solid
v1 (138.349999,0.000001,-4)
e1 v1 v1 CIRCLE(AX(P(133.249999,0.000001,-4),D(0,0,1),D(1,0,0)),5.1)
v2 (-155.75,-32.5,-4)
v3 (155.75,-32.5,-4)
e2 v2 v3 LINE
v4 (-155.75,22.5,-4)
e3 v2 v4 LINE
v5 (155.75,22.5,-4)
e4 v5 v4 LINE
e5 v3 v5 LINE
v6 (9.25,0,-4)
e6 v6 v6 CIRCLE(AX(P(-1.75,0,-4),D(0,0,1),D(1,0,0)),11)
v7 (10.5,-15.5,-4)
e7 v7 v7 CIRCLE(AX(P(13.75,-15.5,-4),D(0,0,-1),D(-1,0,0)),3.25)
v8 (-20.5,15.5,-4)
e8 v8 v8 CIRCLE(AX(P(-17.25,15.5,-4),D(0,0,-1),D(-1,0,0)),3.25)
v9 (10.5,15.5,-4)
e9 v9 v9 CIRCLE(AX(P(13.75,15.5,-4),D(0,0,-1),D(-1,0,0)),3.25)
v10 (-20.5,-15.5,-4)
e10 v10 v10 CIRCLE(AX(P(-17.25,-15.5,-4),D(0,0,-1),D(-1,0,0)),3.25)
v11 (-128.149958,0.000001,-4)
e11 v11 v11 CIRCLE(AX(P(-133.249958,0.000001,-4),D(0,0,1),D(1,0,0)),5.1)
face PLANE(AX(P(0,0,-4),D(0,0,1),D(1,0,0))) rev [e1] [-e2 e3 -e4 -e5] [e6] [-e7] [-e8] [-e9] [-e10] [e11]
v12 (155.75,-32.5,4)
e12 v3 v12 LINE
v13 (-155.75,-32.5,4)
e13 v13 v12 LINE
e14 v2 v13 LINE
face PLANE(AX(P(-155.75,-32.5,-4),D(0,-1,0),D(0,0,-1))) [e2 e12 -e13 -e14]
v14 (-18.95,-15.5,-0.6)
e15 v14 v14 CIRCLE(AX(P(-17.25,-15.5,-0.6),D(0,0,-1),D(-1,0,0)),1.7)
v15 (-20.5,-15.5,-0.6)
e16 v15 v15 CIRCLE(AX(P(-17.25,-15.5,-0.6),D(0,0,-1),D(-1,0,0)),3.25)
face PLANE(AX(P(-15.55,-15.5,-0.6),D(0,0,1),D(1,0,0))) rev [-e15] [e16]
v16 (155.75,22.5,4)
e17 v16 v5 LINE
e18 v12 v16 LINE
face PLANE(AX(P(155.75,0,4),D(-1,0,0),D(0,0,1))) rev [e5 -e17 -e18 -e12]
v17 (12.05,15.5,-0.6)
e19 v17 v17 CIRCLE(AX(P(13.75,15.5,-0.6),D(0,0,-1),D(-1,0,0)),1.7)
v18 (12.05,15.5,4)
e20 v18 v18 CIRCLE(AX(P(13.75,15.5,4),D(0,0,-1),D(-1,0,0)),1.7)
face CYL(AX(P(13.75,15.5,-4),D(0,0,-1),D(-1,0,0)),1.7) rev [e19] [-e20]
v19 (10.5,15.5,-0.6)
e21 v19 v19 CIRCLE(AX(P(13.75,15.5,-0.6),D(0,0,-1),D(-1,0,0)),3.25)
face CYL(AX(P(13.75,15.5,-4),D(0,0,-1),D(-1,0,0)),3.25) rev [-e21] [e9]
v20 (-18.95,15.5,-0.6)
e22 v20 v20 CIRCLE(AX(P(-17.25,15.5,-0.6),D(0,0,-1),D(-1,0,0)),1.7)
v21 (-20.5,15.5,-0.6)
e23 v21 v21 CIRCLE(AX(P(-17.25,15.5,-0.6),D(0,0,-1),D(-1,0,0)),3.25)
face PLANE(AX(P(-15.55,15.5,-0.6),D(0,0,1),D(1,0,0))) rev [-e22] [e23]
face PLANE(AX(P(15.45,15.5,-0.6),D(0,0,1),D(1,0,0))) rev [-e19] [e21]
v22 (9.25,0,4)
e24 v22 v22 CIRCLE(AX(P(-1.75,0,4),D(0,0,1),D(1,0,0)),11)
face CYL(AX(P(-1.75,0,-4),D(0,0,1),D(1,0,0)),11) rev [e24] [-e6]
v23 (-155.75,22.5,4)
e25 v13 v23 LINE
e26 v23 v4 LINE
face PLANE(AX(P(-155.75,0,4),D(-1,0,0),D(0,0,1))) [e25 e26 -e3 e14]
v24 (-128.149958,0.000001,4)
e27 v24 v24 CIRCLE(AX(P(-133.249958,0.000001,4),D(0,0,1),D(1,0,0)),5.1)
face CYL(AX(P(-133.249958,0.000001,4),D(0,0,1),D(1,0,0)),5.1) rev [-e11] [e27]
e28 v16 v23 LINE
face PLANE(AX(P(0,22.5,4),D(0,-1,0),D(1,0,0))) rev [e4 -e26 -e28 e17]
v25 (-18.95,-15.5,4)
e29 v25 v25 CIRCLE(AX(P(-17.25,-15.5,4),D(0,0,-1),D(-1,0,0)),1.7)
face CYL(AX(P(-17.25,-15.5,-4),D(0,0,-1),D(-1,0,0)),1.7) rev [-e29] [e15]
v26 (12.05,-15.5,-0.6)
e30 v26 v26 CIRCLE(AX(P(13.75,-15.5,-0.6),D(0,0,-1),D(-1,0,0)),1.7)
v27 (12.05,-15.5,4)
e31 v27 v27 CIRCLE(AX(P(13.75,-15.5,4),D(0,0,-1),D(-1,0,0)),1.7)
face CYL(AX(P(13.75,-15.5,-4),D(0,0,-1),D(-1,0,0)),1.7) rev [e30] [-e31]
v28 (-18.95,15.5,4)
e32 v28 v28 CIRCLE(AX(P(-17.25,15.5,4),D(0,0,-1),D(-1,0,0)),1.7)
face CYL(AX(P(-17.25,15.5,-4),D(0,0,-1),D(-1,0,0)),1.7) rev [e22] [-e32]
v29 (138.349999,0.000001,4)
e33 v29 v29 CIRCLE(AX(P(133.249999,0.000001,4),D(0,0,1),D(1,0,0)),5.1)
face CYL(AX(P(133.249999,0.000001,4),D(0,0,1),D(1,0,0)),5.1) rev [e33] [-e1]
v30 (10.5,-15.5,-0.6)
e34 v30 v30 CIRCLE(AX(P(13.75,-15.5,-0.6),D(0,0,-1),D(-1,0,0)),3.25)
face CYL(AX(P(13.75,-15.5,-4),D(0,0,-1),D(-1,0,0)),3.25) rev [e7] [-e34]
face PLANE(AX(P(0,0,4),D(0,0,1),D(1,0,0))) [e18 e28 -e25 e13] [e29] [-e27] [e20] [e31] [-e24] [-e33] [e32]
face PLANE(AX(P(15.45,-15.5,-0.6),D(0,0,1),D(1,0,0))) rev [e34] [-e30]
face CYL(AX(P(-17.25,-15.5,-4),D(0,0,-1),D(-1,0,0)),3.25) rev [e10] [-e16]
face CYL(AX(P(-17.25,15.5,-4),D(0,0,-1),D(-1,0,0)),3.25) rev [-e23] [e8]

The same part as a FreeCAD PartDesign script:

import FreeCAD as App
import Part
import Sketcher

doc = App.newDocument("Part")
params = doc.addObject("Spreadsheet::Sheet", "Params")
for row, (alias, value) in enumerate([
    ("sketch1_height", "45 mm"),
    ("sketch1_width", "311.5 mm"),
    ("pad1_length", "8 mm"),
    ("sketch2_diameter", "22 mm"),
    ("sketch2_diameter2", "2.5 mm"),
    ("sketch3_diameter", "3.4 mm"),
    ("hole_diameter", "3.4 mm"),
    ("hole_cbore_diameter", "6.5 mm"),
    ("hole_cbore_depth", "3.4 mm"),
    ("sketch4_diameter", "10.2 mm"),
    ("hole2_diameter", "10.2 mm"),
    ("sketch5_height", "10 mm"),
    ("sketch5_width", "311.5 mm"),
    ("pad2_length", "8 mm"),
], start=1):
    params.set(f"A{row}", alias)
    params.set(f"B{row}", "=" + value)
    params.setAlias(f"B{row}", alias)

body = doc.addObject("PartDesign::Body", "Body")

# Sketch on XY plane
sketch1 = body.newObject("Sketcher::SketchObject", "Sketch")
sketch1.AttachmentSupport = (doc.getObject("XY_Plane"), [""])
sketch1.MapMode = "FlatFace"
sketch1.addGeometry([
    Part.LineSegment(App.Vector(-155.75, 22.5, 0), App.Vector(-155.75, -22.5, 0)),
    Part.LineSegment(App.Vector(-155.75, -22.5, 0), App.Vector(155.75, -22.5, 0)),
    Part.LineSegment(App.Vector(155.75, -22.5, 0), App.Vector(155.75, 22.5, 0)),
    Part.LineSegment(App.Vector(155.75, 22.5, 0), App.Vector(-155.75, 22.5, 0)),
], False)
sketch1.addConstraint([
    Sketcher.Constraint("Coincident", 0, 2, 1, 1),
    Sketcher.Constraint("Coincident", 1, 2, 2, 1),
    Sketcher.Constraint("Coincident", 2, 2, 3, 1),
    Sketcher.Constraint("Coincident", 3, 2, 0, 1),
    Sketcher.Constraint("Vertical", 0),
    Sketcher.Constraint("Horizontal", 1),
    Sketcher.Constraint("Vertical", 2),
    Sketcher.Constraint("Horizontal", 3),
    Sketcher.Constraint("Symmetric", 0, 2, 2, 2, -1, 1),
    Sketcher.Constraint("DistanceY", 0, 2, 0, 1, 45.0),
    Sketcher.Constraint("DistanceX", 1, 1, 1, 2, 311.5),
])
sketch1.setExpression("Constraints[9]", "Params.sketch1_height")
sketch1.setExpression("Constraints[10]", "Params.sketch1_width")
pad1 = body.newObject("PartDesign::Pad", "Pad")
pad1.Profile = sketch1
pad1.setExpression("Length", "Params.pad1_length")
pad1.Midplane = True

# Sketch on XY plane
sketch2 = body.newObject("Sketcher::SketchObject", "Sketch001")
sketch2.AttachmentSupport = (doc.getObject("XY_Plane"), [""])
sketch2.MapMode = "FlatFace"
sketch2.AttachmentOffset = App.Placement(App.Vector(0, 0, 4), App.Rotation())
sketch2.addGeometry([
    Part.Circle(App.Vector(-1.75, 0, 0), App.Vector(0, 0, 1), 11),  # 0
    Part.Circle(App.Vector(-17.25, 15.5, 0), App.Vector(0, 0, 1), 1.25),  # 1
    Part.Circle(App.Vector(13.75, 15.5, 0), App.Vector(0, 0, 1), 1.25),  # 2
    Part.Circle(App.Vector(13.75, -15.5, 0), App.Vector(0, 0, 1), 1.25),  # 3
    Part.Circle(App.Vector(-17.25, -15.5, 0), App.Vector(0, 0, 1), 1.25),  # 4
], False)
sketch2.addConstraint([
    Sketcher.Constraint("Equal", 1, 2),
    Sketcher.Constraint("Equal", 2, 3),
    Sketcher.Constraint("Equal", 3, 4),
    Sketcher.Constraint("Symmetric", 2, 3, 3, 3, -1),
    Sketcher.Constraint("Symmetric", 1, 3, 4, 3, -1),
    Sketcher.Constraint("PointOnObject", 0, 3, -1),
    Sketcher.Constraint("Horizontal", 1, 3, 2, 3),
    Sketcher.Constraint("Diameter", 0, 22.0),
    Sketcher.Constraint("Diameter", 1, 2.5),
    Sketcher.Constraint("DistanceX", 1, 3, 2, 3, 31.0),
    Sketcher.Constraint("DistanceY", 3, 3, 2, 3, 31.0),
    Sketcher.Constraint("DistanceX", 1, 3, 0, 3, 15.5),
    Sketcher.Constraint("DistanceX", 0, 3, -1, 1, 1.75),
])
sketch2.setExpression("Constraints[7]", "Params.sketch2_diameter")
sketch2.setExpression("Constraints[8]", "Params.sketch2_diameter2")
pocket1 = body.newObject("PartDesign::Pocket", "Pocket")
pocket1.Profile = sketch2
pocket1.Type = "ThroughAll"

# Sketch on XY plane
sketch3 = body.newObject("Sketcher::SketchObject", "Sketch002")
sketch3.AttachmentSupport = (doc.getObject("XY_Plane"), [""])
sketch3.MapMode = "FlatFace"
sketch3.AttachmentOffset = App.Placement(App.Vector(0, 0, -4), App.Rotation())
sketch3.addGeometry([
    Part.Circle(App.Vector(13.75, 15.5, 0), App.Vector(0, 0, 1), 1.7),
    Part.Circle(App.Vector(-17.25, 15.5, 0), App.Vector(0, 0, 1), 1.7),
    Part.Circle(App.Vector(-17.25, -15.5, 0), App.Vector(0, 0, 1), 1.7),
    Part.Circle(App.Vector(13.75, -15.5, 0), App.Vector(0, 0, 1), 1.7),
], False)
sketch3.addConstraint([
    Sketcher.Constraint("Equal", 0, 1),
    Sketcher.Constraint("Equal", 1, 2),
    Sketcher.Constraint("Equal", 2, 3),
    Sketcher.Constraint("Symmetric", 1, 3, 2, 3, -1),
    Sketcher.Constraint("Symmetric", 0, 3, 3, 3, -1),
    Sketcher.Constraint("Horizontal", 0, 3, 1, 3),
    Sketcher.Constraint("Diameter", 0, 3.4),
    Sketcher.Constraint("DistanceX", 1, 3, 0, 3, 31.0),
    Sketcher.Constraint("DistanceY", 2, 3, 1, 3, 31.0),
    Sketcher.Constraint("DistanceX", -1, 1, 0, 3, 13.75),
])
sketch3.setExpression("Constraints[6]", "Params.sketch3_diameter")
doc.recompute()
hole = body.newObject("PartDesign::Hole", "Hole")
hole.Profile = sketch3
hole.ThreadType = "None"
hole.setExpression("Diameter", "Params.hole_diameter")
hole.DepthType = "ThroughAll"
hole.HoleCutType = "Counterbore"
hole.setExpression("HoleCutDiameter", "Params.hole_cbore_diameter")
hole.setExpression("HoleCutDepth", "Params.hole_cbore_depth")
hole.Reversed = True

# Sketch on XY plane
sketch4 = body.newObject("Sketcher::SketchObject", "Sketch003")
sketch4.AttachmentSupport = (doc.getObject("XY_Plane"), [""])
sketch4.MapMode = "FlatFace"
sketch4.AttachmentOffset = App.Placement(App.Vector(0, 0, 4), App.Rotation())
sketch4.addGeometry([
    Part.Circle(App.Vector(-133.249958, 0.000001, 0), App.Vector(0, 0, 1), 5.1),
    Part.Circle(App.Vector(133.249999, 0.000001, 0), App.Vector(0, 0, 1), 5.1),
], False)
sketch4.addConstraint([
    Sketcher.Constraint("Equal", 0, 1),
    Sketcher.Constraint("PointOnObject", 0, 3, -1),
    Sketcher.Constraint("PointOnObject", 1, 3, -1),
    Sketcher.Constraint("Diameter", 0, 10.2),
    Sketcher.Constraint("DistanceX", -1, 1, 1, 3, 133.249999),
    Sketcher.Constraint("DistanceX", 0, 3, -1, 1, 133.249958),
])
sketch4.setExpression("Constraints[3]", "Params.sketch4_diameter")
doc.recompute()
hole2 = body.newObject("PartDesign::Hole", "Hole001")
hole2.Profile = sketch4
hole2.ThreadType = "None"
hole2.setExpression("Diameter", "Params.hole2_diameter")
hole2.DepthType = "ThroughAll"

# Sketch on XY plane
sketch5 = body.newObject("Sketcher::SketchObject", "Sketch004")
sketch5.AttachmentSupport = (doc.getObject("XY_Plane"), [""])
sketch5.MapMode = "FlatFace"
sketch5.AttachmentOffset = App.Placement(App.Vector(0, 0, 4), App.Rotation())
sketch5.addGeometry([
    Part.LineSegment(App.Vector(-155.75, -22.5, 0), App.Vector(-155.75, -32.5, 0)),
    Part.LineSegment(App.Vector(-155.75, -32.5, 0), App.Vector(155.75, -32.5, 0)),
    Part.LineSegment(App.Vector(155.75, -32.5, 0), App.Vector(155.75, -22.5, 0)),
    Part.LineSegment(App.Vector(155.75, -22.5, 0), App.Vector(-155.75, -22.5, 0)),
], False)
sketch5.addConstraint([
    Sketcher.Constraint("Coincident", 0, 2, 1, 1),
    Sketcher.Constraint("Coincident", 1, 2, 2, 1),
    Sketcher.Constraint("Coincident", 2, 2, 3, 1),
    Sketcher.Constraint("Coincident", 3, 2, 0, 1),
    Sketcher.Constraint("Vertical", 0),
    Sketcher.Constraint("Horizontal", 1),
    Sketcher.Constraint("Vertical", 2),
    Sketcher.Constraint("Horizontal", 3),
    Sketcher.Constraint("DistanceY", 0, 2, 0, 1, 10.0),
    Sketcher.Constraint("DistanceX", 1, 1, 1, 2, 311.5),
    Sketcher.Constraint("DistanceY", 0, 2, -1, 1, 32.5),
    Sketcher.Constraint("DistanceX", 0, 2, -1, 1, 155.75),
])
sketch5.setExpression("Constraints[8]", "Params.sketch5_height")
sketch5.setExpression("Constraints[9]", "Params.sketch5_width")
pad2 = body.newObject("PartDesign::Pad", "Pad001")
pad2.Profile = sketch5
pad2.setExpression("Length", "Params.pad2_length")
pad2.Reversed = True

doc.recompute()
